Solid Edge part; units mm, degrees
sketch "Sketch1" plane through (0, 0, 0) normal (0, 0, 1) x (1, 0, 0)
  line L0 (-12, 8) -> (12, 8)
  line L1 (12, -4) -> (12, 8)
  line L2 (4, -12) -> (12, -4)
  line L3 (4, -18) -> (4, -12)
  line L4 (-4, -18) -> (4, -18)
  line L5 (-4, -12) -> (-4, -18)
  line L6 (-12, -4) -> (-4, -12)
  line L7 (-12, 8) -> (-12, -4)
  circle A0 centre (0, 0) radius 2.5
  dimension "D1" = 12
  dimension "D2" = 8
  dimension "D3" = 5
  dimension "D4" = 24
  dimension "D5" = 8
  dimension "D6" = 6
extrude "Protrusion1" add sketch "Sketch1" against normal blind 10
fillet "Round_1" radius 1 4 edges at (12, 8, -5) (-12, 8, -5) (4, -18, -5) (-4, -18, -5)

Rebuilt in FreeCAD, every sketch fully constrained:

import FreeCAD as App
import Part
import Sketcher
from FreeCAD import Vector


def edges_at(feature, points):
    """Names of the edges that pass closest to the given points."""
    edges = feature.Shape.Edges
    near = lambda p: min(range(len(edges)), key=lambda i: edges[i].distToShape(Part.Vertex(*p))[0])
    return sorted({f"Edge{near(p) + 1}" for p in points})

doc = App.newDocument("Part")
body = doc.addObject("PartDesign::Body", "Body")

sketch1 = body.newObject("Sketcher::SketchObject", "Sketch")
sketch1.AttachmentSupport = (doc.getObject("XY_Plane"), [""])
sketch1.MapMode = "FlatFace"
sketch1.addGeometry([
    Part.LineSegment(Vector(12, 8, 0), Vector(-12, 8, 0)),
    Part.LineSegment(Vector(-12, 8, 0), Vector(-12, -4, 0)),
    Part.LineSegment(Vector(-12, -4, 0), Vector(-4, -12, 0)),
    Part.LineSegment(Vector(-4, -12, 0), Vector(-4, -18, 0)),
    Part.LineSegment(Vector(-4, -18, 0), Vector(4, -18, 0)),
    Part.LineSegment(Vector(4, -18, 0), Vector(4, -12, 0)),
    Part.LineSegment(Vector(4, -12, 0), Vector(12, -4, 0)),
    Part.LineSegment(Vector(12, -4, 0), Vector(12, 8, 0)),
    Part.Circle(Vector(0, 0, 0), Vector(0, 0, 1), 2.5),
], False)
sketch1.addConstraint([
    Sketcher.Constraint("Coincident", 0, 2, 1, 1),
    Sketcher.Constraint("Coincident", 1, 2, 2, 1),
    Sketcher.Constraint("Coincident", 2, 2, 3, 1),
    Sketcher.Constraint("Coincident", 3, 2, 4, 1),
    Sketcher.Constraint("Coincident", 4, 2, 5, 1),
    Sketcher.Constraint("Coincident", 5, 2, 6, 1),
    Sketcher.Constraint("Coincident", 6, 2, 7, 1),
    Sketcher.Constraint("Coincident", 7, 2, 0, 1),
    Sketcher.Constraint("Horizontal", 0),
    Sketcher.Constraint("Vertical", 1),
    Sketcher.Constraint("Vertical", 3),
    Sketcher.Constraint("Horizontal", 4),
    Sketcher.Constraint("Vertical", 5),
    Sketcher.Constraint("Vertical", 7),
    Sketcher.Constraint("Coincident", 8, 3, -1, 1),
    Sketcher.Constraint("Symmetric", 2, 2, 5, 2, -2),
    Sketcher.Constraint("Symmetric", 1, 2, 6, 2, -2),
    Sketcher.Constraint("Perpendicular", 2, 6),
    Sketcher.Constraint("DistanceY", 1, 2, 1, 1, 12.0),
    Sketcher.Constraint("Diameter", 8, 5.0),
    Sketcher.Constraint("DistanceX", 0, 2, -1, 1, 12.0),
    Sketcher.Constraint("DistanceY", 1, 2, -1, 1, 4.0),
    Sketcher.Constraint("DistanceX", 2, 2, -1, 1, 4.0),
    Sketcher.Constraint("DistanceY", 3, 2, 3, 1, 6.0),
])
pad1 = body.newObject("PartDesign::Pad", "Pad")
pad1.Profile = sketch1
pad1.Length = 10
pad1.Reversed = True
doc.recompute()

fillet = body.newObject("PartDesign::Fillet", "Fillet")
fillet.Base = (pad1, edges_at(pad1, [
    (12, 8, -5),
    (-12, 8, -5),
    (4, -18, -5),
    (-4, -18, -5),
]))
fillet.Radius = 1

doc.recompute()
